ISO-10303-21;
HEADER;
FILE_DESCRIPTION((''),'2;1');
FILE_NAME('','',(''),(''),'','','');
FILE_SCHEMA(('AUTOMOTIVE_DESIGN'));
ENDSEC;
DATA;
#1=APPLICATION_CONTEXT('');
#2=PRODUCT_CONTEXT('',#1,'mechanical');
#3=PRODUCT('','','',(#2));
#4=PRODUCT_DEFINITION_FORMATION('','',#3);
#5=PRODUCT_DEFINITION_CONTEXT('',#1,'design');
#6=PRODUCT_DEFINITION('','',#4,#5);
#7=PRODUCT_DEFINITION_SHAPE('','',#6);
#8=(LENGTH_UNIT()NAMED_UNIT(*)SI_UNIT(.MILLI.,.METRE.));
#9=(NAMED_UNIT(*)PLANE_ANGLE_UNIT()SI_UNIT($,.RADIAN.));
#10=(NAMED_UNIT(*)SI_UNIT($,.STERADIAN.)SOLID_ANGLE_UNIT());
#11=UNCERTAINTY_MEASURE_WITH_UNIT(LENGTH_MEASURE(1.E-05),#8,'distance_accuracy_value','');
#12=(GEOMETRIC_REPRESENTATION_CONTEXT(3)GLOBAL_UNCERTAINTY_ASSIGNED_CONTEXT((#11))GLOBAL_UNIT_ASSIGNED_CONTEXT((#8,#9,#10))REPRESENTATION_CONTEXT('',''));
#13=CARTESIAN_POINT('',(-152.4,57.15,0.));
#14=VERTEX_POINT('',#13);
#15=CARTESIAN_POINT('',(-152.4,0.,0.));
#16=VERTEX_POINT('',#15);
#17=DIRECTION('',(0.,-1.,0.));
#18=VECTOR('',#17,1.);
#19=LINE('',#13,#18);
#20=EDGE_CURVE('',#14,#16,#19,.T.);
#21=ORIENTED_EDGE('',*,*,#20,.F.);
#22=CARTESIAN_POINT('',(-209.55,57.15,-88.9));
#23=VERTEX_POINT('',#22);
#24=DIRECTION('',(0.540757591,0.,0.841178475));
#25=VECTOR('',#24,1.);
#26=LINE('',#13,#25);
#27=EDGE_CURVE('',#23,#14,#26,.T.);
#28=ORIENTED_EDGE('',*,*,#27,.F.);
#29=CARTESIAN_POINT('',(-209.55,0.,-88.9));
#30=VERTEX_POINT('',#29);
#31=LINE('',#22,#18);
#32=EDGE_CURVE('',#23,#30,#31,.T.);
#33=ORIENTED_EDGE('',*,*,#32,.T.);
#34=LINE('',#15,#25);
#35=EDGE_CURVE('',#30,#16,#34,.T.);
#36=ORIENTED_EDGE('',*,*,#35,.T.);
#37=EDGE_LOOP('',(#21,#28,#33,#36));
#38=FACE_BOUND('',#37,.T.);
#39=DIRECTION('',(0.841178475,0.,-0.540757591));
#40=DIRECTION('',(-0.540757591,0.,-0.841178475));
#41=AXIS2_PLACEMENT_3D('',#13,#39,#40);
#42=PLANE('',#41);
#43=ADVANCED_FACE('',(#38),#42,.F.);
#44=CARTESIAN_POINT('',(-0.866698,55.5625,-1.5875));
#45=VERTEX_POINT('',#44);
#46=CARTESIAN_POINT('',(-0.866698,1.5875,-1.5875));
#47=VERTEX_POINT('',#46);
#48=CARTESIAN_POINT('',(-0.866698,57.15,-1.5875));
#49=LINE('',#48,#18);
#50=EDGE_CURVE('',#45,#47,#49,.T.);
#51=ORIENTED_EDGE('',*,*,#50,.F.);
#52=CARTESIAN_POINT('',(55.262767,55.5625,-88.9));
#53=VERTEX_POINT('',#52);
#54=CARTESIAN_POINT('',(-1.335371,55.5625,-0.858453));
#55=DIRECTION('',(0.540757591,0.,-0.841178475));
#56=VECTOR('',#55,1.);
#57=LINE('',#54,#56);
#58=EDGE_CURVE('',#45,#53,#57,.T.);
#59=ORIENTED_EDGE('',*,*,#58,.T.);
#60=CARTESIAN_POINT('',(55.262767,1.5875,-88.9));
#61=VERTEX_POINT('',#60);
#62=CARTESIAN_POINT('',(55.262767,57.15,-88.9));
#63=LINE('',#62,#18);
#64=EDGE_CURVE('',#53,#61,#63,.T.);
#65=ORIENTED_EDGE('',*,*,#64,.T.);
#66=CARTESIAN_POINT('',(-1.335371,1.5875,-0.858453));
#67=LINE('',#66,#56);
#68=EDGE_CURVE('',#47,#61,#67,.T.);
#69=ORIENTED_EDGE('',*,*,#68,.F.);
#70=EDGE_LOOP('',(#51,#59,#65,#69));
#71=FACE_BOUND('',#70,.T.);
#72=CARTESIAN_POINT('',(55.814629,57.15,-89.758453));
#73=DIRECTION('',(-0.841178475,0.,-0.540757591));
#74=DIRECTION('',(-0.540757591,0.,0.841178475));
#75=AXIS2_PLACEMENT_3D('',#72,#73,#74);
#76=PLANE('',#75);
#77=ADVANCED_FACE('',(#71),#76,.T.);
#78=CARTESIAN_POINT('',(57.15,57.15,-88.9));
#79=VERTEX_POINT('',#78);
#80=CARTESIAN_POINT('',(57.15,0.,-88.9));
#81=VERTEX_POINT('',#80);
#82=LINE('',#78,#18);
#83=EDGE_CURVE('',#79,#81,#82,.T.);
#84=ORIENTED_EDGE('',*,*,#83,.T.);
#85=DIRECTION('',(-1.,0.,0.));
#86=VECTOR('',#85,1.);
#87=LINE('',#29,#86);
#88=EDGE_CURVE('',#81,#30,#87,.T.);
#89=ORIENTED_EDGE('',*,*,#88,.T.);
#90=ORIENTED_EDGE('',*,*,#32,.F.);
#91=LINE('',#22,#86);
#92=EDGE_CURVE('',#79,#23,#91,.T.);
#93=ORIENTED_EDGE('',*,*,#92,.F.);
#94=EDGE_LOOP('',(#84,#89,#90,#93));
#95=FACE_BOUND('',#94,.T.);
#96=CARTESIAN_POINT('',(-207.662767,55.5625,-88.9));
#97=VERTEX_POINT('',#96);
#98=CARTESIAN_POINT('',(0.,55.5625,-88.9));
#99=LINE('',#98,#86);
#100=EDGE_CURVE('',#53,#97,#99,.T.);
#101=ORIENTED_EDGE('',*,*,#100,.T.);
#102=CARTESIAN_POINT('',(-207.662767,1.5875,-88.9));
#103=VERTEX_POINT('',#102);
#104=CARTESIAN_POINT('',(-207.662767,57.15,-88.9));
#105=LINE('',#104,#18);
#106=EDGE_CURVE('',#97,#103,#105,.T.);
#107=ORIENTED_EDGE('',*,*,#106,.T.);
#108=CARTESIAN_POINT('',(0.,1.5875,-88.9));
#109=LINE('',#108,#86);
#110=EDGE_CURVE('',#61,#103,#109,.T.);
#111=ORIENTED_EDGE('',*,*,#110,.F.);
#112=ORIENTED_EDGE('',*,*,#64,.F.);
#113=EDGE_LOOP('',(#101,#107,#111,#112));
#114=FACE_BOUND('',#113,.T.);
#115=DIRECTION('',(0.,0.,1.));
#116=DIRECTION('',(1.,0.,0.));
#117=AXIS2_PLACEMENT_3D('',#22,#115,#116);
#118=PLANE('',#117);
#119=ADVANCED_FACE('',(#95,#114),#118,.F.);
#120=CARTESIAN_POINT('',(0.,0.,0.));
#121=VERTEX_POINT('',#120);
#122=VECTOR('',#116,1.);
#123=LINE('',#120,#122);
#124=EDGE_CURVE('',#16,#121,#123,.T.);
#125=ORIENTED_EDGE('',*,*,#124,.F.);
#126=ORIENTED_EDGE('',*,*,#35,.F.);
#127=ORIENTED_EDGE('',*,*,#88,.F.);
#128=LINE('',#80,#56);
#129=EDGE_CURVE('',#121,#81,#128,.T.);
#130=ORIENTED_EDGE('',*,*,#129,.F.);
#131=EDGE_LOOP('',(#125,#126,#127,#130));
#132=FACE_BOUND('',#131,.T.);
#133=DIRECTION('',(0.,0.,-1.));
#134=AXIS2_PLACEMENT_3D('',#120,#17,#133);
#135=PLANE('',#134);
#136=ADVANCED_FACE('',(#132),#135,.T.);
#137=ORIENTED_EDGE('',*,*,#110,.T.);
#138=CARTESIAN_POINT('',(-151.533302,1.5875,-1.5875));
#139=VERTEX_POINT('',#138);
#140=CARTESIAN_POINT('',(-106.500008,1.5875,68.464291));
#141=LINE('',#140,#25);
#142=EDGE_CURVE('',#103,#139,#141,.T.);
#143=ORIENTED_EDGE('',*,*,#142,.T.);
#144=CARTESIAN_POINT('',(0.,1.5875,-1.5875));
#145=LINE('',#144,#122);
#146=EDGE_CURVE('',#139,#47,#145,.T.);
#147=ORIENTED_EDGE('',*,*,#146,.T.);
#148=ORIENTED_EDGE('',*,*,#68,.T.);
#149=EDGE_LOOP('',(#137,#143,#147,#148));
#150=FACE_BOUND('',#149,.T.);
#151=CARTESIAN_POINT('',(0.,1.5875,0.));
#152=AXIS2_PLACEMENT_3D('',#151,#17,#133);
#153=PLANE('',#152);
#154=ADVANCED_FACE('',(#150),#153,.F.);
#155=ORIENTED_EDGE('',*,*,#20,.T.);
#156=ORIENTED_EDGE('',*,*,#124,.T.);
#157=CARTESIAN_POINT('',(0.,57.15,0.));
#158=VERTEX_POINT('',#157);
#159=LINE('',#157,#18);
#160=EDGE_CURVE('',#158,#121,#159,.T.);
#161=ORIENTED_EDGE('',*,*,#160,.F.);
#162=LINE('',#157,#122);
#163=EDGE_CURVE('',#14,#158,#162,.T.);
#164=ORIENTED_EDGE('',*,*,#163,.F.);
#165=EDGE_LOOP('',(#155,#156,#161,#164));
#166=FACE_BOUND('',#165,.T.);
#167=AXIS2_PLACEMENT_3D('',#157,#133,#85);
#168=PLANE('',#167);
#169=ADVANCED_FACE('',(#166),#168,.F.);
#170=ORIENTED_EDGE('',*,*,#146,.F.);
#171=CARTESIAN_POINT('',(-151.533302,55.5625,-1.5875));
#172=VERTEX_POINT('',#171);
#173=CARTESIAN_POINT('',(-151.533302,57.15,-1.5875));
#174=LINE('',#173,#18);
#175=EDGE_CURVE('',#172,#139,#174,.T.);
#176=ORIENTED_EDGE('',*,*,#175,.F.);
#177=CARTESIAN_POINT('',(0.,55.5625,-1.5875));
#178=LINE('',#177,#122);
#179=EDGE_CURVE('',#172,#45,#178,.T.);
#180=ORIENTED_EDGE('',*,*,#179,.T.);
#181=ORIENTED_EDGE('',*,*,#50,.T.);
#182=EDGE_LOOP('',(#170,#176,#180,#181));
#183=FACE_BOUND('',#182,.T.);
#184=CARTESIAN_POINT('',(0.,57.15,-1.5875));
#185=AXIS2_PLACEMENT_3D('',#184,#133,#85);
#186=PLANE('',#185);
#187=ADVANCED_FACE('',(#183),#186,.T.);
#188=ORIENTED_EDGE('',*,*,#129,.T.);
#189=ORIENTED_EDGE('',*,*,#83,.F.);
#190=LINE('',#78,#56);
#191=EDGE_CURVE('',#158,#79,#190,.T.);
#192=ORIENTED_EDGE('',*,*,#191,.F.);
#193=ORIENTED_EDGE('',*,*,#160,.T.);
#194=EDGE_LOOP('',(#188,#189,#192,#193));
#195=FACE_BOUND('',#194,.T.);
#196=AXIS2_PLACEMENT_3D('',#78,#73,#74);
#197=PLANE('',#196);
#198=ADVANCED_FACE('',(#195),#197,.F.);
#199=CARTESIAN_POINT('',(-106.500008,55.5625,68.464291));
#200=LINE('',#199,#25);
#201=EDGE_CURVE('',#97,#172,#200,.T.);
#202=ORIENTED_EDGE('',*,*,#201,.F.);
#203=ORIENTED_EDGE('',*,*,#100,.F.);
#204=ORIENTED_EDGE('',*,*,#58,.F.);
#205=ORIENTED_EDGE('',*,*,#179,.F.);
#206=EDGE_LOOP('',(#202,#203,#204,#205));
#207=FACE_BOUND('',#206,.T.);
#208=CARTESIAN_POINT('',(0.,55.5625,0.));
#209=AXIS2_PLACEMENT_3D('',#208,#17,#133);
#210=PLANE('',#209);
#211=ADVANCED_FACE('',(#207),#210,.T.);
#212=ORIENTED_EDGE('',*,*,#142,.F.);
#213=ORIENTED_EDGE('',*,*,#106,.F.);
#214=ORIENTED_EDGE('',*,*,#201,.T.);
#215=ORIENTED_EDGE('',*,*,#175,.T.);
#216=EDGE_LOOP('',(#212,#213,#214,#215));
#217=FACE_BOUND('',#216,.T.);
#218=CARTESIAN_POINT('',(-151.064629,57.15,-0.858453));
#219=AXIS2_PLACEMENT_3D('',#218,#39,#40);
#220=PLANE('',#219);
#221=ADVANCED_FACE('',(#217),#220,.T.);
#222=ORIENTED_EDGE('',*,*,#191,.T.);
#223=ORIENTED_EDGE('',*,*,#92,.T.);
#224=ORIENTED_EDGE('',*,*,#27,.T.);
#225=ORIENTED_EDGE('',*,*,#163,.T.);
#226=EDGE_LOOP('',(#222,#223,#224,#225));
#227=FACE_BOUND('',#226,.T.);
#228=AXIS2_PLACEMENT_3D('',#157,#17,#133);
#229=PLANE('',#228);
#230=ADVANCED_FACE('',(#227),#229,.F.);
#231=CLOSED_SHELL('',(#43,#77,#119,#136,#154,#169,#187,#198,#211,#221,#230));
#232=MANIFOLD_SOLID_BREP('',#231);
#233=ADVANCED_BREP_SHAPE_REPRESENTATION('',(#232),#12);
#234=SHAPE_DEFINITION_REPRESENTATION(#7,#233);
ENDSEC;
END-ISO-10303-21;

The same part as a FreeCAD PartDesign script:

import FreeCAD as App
import Part
import Sketcher
from FreeCAD import Vector
Q = App.Units.Quantity


def faces_at(feature, points):
    """Names of the faces that lie closest to the given points."""
    faces = feature.Shape.Faces
    near = lambda p: min(range(len(faces)), key=lambda i: faces[i].distToShape(Part.Vertex(*p))[0])
    return sorted({f"Face{near(p) + 1}" for p in points})


def add_polygon(sketch, points):
    """Adds a closed chain of lines whose ends are joined by coincident constraints."""
    first, n = sketch.GeometryCount, len(points)
    for a, b in zip(points, points[1:] + points[:1]):
        sketch.addGeometry(Part.LineSegment(App.Vector(*a, 0), App.Vector(*b, 0)), False)
    for i in range(n):
        sketch.addConstraint(Sketcher.Constraint("Coincident", first + i, 2, first + (i + 1) % n, 1))

doc = App.newDocument("Part")
params = doc.addObject("Spreadsheet::Sheet", "Params")
for row, (alias, value) in enumerate([
    ("sketch1_width", "6 in"),
    ("sketch1_width2", "10.5 in"),
    ("pad1_length", "2.25 in"),
    ("thickness_wall", "0.0625 in"),
], start=1):
    params.set(f"A{row}", alias)
    params.set(f"B{row}", "=" + value)
    params.setAlias(f"B{row}", alias)

body = doc.addObject("PartDesign::Body", "Body")

sketch1 = doc.addObject("Sketcher::SketchObject", "Sketch")
body.addObject(sketch1)
sketch1.AttachmentSupport = (doc.XZ_Plane, [""])
sketch1.MapMode = "FlatFace"
add_polygon(sketch1, [(-152.4, 0), (0, 0), (57.15, -88.9), (-209.55, -88.9)])
sketch1.addConstraint([
    Sketcher.Constraint("Horizontal", 0),
    Sketcher.Constraint("Horizontal", 2),
    Sketcher.Constraint("Coincident", 0, 2, -1, 1),
    Sketcher.Constraint("Equal", 1, 3),
    Sketcher.Constraint("DistanceX", 0, 1, 0, 2, Q("6 in")),
    Sketcher.Constraint("DistanceX", 2, 2, 2, 1, Q("10.5 in")),
    Sketcher.Constraint("DistanceY", 1, 2, -1, 1, Q("3.5 in")),
])
sketch1.setExpression("Constraints[8]", "Params.sketch1_width")
sketch1.setExpression("Constraints[9]", "Params.sketch1_width2")
pad1 = doc.addObject("PartDesign::Pad", "Pad")
body.addObject(pad1)
pad1.Profile = sketch1
pad1.setExpression("Length", "Params.pad1_length")
pad1.Reversed = True
doc.recompute()

thickness = doc.addObject("PartDesign::Thickness", "Thickness")
body.addObject(thickness)
thickness.Base = (pad1, faces_at(pad1, [(-76.2, 28.575, -88.9)]))
thickness.setExpression("Value", "Params.thickness_wall")
thickness.Reversed = True
thickness.Join = "Intersection"

doc.recompute()
